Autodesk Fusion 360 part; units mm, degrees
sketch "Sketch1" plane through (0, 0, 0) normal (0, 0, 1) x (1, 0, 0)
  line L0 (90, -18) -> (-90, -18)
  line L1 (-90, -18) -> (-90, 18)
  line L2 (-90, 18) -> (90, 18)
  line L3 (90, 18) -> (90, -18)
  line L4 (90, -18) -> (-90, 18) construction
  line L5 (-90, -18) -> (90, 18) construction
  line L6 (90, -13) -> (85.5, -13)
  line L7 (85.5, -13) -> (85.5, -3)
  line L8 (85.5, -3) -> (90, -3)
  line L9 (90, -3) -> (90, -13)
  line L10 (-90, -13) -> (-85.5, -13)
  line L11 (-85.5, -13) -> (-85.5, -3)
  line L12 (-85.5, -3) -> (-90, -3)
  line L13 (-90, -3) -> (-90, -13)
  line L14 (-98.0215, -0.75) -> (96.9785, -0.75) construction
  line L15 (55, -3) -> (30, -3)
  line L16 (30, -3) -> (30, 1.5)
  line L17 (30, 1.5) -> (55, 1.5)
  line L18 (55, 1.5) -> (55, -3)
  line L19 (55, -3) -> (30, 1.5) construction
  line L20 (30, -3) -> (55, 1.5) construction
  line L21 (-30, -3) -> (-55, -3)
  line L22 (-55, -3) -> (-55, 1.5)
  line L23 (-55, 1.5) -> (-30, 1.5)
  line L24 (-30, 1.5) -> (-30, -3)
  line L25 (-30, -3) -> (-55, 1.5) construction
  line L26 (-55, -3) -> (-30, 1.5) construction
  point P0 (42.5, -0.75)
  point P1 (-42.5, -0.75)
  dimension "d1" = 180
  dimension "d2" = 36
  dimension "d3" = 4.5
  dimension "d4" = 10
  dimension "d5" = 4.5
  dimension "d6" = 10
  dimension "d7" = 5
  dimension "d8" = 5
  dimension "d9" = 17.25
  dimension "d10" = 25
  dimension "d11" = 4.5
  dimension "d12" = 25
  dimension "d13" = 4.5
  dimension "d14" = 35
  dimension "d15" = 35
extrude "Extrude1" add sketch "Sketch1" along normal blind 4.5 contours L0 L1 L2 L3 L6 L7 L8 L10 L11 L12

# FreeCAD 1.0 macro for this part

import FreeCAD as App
import Part
import Sketcher

V = App.Vector

doc = App.newDocument("Part")
body = doc.addObject("PartDesign::Body", "Body")

# Sketch on XY plane
sketch1 = body.newObject("Sketcher::SketchObject", "Sketch")
sketch1.AttachmentSupport = (doc.getObject("XY_Plane"), [""])
sketch1.MapMode = "FlatFace"
sketch1.addGeometry([
    Part.LineSegment(V(-90, -18, 0), V(90, -18, 0)),  # 0
    Part.LineSegment(V(90, -18, 0), V(90, -13, 0)),  # 1
    Part.LineSegment(V(90, -13, 0), V(85.5, -13, 0)),  # 2
    Part.LineSegment(V(85.5, -13, 0), V(85.5, -3, 0)),  # 3
    Part.LineSegment(V(85.5, -3, 0), V(90, -3, 0)),  # 4
    Part.LineSegment(V(90, -3, 0), V(90, 18, 0)),  # 5
    Part.LineSegment(V(90, 18, 0), V(-90, 18, 0)),  # 6
    Part.LineSegment(V(-90, 18, 0), V(-90, -3, 0)),  # 7
    Part.LineSegment(V(-90, -3, 0), V(-85.5, -3, 0)),  # 8
    Part.LineSegment(V(-85.5, -3, 0), V(-85.5, -13, 0)),  # 9
    Part.LineSegment(V(-85.5, -13, 0), V(-90, -13, 0)),  # 10
    Part.LineSegment(V(-90, -13, 0), V(-90, -18, 0)),  # 11
    Part.LineSegment(V(-30, 1.5, 0), V(-30, -3, 0)),  # 12
    Part.LineSegment(V(-30, -3, 0), V(-55, -3, 0)),  # 13
    Part.LineSegment(V(-55, -3, 0), V(-55, 1.5, 0)),  # 14
    Part.LineSegment(V(-55, 1.5, 0), V(-30, 1.5, 0)),  # 15
    Part.LineSegment(V(55, 1.5, 0), V(55, -3, 0)),  # 16
    Part.LineSegment(V(55, -3, 0), V(30, -3, 0)),  # 17
    Part.LineSegment(V(30, -3, 0), V(30, 1.5, 0)),  # 18
    Part.LineSegment(V(30, 1.5, 0), V(55, 1.5, 0)),  # 19
], False)
sketch1.addConstraint([
    Sketcher.Constraint("Coincident", 0, 2, 1, 1),
    Sketcher.Constraint("Coincident", 1, 2, 2, 1),
    Sketcher.Constraint("Coincident", 2, 2, 3, 1),
    Sketcher.Constraint("Coincident", 3, 2, 4, 1),
    Sketcher.Constraint("Coincident", 4, 2, 5, 1),
    Sketcher.Constraint("Coincident", 5, 2, 6, 1),
    Sketcher.Constraint("Coincident", 6, 2, 7, 1),
    Sketcher.Constraint("Coincident", 7, 2, 8, 1),
    Sketcher.Constraint("Coincident", 8, 2, 9, 1),
    Sketcher.Constraint("Coincident", 9, 2, 10, 1),
    Sketcher.Constraint("Coincident", 10, 2, 11, 1),
    Sketcher.Constraint("Coincident", 11, 2, 0, 1),
    Sketcher.Constraint("Coincident", 12, 2, 13, 1),
    Sketcher.Constraint("Coincident", 13, 2, 14, 1),
    Sketcher.Constraint("Coincident", 14, 2, 15, 1),
    Sketcher.Constraint("Coincident", 15, 2, 12, 1),
    Sketcher.Constraint("Coincident", 16, 2, 17, 1),
    Sketcher.Constraint("Coincident", 17, 2, 18, 1),
    Sketcher.Constraint("Coincident", 18, 2, 19, 1),
    Sketcher.Constraint("Coincident", 19, 2, 16, 1),
    Sketcher.Constraint("Horizontal", 0),
    Sketcher.Constraint("Vertical", 1),
    Sketcher.Constraint("Horizontal", 2),
    Sketcher.Constraint("Vertical", 3),
    Sketcher.Constraint("Horizontal", 4),
    Sketcher.Constraint("Vertical", 5),
    Sketcher.Constraint("Horizontal", 6),
    Sketcher.Constraint("Vertical", 7),
    Sketcher.Constraint("Horizontal", 8),
    Sketcher.Constraint("Vertical", 9),
    Sketcher.Constraint("Horizontal", 10),
    Sketcher.Constraint("Vertical", 11),
    Sketcher.Constraint("Vertical", 12),
    Sketcher.Constraint("Horizontal", 13),
    Sketcher.Constraint("Vertical", 14),
    Sketcher.Constraint("Horizontal", 15),
    Sketcher.Constraint("Vertical", 16),
    Sketcher.Constraint("Horizontal", 17),
    Sketcher.Constraint("Vertical", 18),
    Sketcher.Constraint("Horizontal", 19),
    Sketcher.Constraint("Symmetric", 0, 2, 6, 2, -1, 1),
    Sketcher.Constraint("Symmetric", 4, 2, 7, 2, -2),
    Sketcher.Constraint("Symmetric", 2, 2, 9, 2, -2),
    Sketcher.Constraint("Symmetric", 13, 2, 16, 2, -2),
    Sketcher.Constraint("Symmetric", 15, 2, 18, 2, -2),
    Sketcher.Constraint("Horizontal", 8, 2, 12, 2),
    Sketcher.Constraint("Vertical", 7, 2, 10, 2),
    Sketcher.Constraint("Equal", 10, 12),
    Sketcher.Constraint("DistanceX", 0, 1, 0, 2, 180.0),
    Sketcher.Constraint("DistanceX", 13, 2, 13, 1, 25.0),
    Sketcher.Constraint("DistanceY", 1, 1, 1, 2, 5.0),
    Sketcher.Constraint("DistanceY", 3, 1, 3, 2, 10.0),
    Sketcher.Constraint("DistanceX", 2, 2, 2, 1, 4.5),
    Sketcher.Constraint("DistanceY", 0, 2, 5, 2, 36.0),
    Sketcher.Constraint("DistanceX", 7, 2, 13, 2, 35.0),
])
pad1 = body.newObject("PartDesign::Pad", "Pad")
pad1.Profile = sketch1
pad1.Length = 4.5

doc.recompute()
